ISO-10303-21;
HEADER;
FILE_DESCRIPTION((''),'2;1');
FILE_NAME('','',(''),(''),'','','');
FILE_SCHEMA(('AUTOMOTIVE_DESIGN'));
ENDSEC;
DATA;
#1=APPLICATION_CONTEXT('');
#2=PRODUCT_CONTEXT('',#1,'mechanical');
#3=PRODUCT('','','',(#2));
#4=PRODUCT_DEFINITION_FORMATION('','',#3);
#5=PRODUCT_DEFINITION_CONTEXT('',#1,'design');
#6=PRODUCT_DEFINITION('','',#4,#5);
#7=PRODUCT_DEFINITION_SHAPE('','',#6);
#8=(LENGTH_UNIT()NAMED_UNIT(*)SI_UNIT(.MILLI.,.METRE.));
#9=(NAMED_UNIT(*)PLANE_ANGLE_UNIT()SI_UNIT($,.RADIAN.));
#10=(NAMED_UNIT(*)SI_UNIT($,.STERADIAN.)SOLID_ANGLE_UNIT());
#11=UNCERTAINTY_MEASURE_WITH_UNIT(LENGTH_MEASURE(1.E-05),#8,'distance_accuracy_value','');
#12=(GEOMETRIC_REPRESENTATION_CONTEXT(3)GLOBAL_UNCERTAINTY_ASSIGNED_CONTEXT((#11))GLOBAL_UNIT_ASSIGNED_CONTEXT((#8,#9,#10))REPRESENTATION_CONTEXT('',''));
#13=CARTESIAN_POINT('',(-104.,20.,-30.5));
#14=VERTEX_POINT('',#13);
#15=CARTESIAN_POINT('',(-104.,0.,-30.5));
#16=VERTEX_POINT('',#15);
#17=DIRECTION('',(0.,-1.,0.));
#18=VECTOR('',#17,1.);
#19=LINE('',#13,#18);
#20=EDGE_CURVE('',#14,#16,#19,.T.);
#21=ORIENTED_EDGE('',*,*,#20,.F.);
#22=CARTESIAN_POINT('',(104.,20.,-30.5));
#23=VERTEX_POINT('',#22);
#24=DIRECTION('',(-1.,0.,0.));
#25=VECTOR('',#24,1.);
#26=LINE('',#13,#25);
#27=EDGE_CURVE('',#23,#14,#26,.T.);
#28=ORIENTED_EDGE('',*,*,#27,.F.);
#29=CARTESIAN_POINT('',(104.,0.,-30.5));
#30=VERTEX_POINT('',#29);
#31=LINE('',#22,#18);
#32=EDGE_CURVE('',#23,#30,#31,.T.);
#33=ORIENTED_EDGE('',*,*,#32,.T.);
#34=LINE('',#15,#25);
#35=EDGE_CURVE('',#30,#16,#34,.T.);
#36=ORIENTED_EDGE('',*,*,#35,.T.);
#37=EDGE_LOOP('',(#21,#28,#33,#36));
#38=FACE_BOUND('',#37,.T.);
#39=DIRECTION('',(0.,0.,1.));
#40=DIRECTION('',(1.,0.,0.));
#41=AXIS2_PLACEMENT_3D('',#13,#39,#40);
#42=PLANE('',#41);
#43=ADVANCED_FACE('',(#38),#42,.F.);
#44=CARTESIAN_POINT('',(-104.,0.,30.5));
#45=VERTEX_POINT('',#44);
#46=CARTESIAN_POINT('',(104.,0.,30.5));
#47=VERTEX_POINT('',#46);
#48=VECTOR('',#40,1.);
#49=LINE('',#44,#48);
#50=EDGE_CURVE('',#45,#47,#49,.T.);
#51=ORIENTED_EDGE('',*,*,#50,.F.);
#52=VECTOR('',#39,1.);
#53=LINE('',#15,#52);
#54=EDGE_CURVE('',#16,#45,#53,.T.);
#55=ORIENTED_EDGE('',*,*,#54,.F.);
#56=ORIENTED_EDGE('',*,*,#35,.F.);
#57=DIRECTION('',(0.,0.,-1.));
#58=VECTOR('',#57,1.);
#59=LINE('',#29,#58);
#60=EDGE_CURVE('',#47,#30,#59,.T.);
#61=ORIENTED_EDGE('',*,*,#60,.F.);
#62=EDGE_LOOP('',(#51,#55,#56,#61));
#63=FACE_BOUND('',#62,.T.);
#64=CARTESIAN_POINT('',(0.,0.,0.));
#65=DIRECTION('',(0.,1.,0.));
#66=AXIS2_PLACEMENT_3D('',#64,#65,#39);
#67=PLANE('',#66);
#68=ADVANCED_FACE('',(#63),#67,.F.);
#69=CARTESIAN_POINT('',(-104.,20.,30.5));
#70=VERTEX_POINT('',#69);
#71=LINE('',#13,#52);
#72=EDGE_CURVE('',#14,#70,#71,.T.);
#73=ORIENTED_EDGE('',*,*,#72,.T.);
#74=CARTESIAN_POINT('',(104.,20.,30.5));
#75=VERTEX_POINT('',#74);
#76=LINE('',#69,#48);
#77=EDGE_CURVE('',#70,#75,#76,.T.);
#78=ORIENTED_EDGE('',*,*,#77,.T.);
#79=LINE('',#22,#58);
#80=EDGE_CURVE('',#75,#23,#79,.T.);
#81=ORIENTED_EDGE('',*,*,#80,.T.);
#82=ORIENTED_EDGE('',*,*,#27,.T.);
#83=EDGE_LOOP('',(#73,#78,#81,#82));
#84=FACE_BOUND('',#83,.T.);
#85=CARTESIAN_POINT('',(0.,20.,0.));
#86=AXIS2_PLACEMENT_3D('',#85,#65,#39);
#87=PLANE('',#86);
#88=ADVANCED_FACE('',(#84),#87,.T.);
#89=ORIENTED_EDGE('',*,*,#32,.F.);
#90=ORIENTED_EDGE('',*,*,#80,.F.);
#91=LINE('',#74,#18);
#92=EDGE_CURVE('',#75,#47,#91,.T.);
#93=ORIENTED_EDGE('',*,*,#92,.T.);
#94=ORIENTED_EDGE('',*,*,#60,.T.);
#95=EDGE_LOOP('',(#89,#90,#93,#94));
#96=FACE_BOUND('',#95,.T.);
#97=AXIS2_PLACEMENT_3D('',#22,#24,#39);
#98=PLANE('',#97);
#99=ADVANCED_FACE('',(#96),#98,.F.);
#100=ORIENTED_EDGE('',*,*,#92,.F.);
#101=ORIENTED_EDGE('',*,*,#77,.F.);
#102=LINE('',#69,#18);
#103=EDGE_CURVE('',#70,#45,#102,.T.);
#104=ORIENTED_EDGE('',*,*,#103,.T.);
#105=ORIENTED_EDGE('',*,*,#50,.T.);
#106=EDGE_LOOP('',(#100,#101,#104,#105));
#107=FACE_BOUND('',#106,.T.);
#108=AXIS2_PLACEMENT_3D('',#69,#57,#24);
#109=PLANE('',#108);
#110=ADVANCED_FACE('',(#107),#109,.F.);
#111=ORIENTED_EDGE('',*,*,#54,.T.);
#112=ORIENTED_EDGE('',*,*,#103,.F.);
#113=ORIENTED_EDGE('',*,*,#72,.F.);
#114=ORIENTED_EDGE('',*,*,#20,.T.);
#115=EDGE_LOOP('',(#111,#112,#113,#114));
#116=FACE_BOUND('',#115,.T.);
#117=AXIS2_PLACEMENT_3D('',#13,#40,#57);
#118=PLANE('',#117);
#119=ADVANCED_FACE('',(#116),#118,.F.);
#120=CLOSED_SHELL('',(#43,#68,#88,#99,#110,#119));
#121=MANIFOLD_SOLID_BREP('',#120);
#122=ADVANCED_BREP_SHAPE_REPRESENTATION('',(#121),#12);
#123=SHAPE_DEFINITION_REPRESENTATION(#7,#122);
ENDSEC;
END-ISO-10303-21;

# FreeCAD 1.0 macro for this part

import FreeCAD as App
import Part
import Sketcher
from FreeCAD import Vector
Q = App.Units.Quantity

doc = App.newDocument("Part")
body = doc.addObject("PartDesign::Body", "Body")

# Sketch on XZ plane
sketch1 = body.newObject("Sketcher::SketchObject", "Sketch")
sketch1.AttachmentSupport = (doc.getObject("XZ_Plane"), [""])
sketch1.MapMode = "FlatFace"
sketch1.addGeometry([
    Part.LineSegment(Vector(-104, -30.5, 0), Vector(-104, 30.5, 0)),
    Part.LineSegment(Vector(-104, 30.5, 0), Vector(104, 30.5, 0)),
    Part.LineSegment(Vector(104, 30.5, 0), Vector(104, -30.5, 0)),
    Part.LineSegment(Vector(104, -30.5, 0), Vector(-104, -30.5, 0)),
], False)
sketch1.addConstraint([
    Sketcher.Constraint("Coincident", 0, 2, 1, 1),
    Sketcher.Constraint("Coincident", 1, 2, 2, 1),
    Sketcher.Constraint("Coincident", 2, 2, 3, 1),
    Sketcher.Constraint("Coincident", 3, 2, 0, 1),
    Sketcher.Constraint("Vertical", 0),
    Sketcher.Constraint("Horizontal", 1),
    Sketcher.Constraint("Vertical", 2),
    Sketcher.Constraint("Horizontal", 3),
    Sketcher.Constraint("Symmetric", 0, 2, 2, 2, -1, 1),
    Sketcher.Constraint("DistanceX", 1, 1, 1, 2, Q("208 mm")),
    Sketcher.Constraint("DistanceY", 0, 1, 0, 2, Q("61 mm")),
])
pad1 = body.newObject("PartDesign::Pad", "Pad")
pad1.Profile = sketch1
pad1.Length = 20
pad1.Reversed = True

doc.recompute()
